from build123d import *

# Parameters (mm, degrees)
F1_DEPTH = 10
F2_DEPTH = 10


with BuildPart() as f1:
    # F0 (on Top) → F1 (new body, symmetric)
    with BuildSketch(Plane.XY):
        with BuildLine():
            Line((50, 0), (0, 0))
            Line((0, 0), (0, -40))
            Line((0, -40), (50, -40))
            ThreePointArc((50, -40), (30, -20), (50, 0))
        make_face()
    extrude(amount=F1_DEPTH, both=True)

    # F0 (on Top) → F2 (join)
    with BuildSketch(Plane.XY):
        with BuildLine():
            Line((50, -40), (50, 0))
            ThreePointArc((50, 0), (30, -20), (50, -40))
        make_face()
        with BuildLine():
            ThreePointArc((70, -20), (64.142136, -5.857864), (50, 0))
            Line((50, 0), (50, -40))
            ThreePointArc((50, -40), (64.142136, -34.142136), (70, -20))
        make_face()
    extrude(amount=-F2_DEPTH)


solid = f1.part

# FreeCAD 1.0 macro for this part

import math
import FreeCAD as App
import Part
import Sketcher

V = App.Vector
Q = App.Units.Quantity

doc = App.newDocument("Part")
body = doc.addObject("PartDesign::Body", "Body")

sketch1 = body.newObject("Sketcher::SketchObject", "Sketch")
sketch1.AttachmentSupport = (doc.getObject("XY_Plane"), [""])
sketch1.MapMode = "FlatFace"
sketch1.addGeometry(Part.LineSegment(V(50, 0, 0), V(0, 0, 0)), False)
sketch1.addGeometry(Part.LineSegment(V(0, 0, 0), V(0, -40, 0)), False)
sketch1.addGeometry(Part.LineSegment(V(0, -40, 0), V(50, -40, 0)), False)
sketch1.addGeometry(Part.ArcOfCircle(Part.Circle(V(50, -20, 0), V(0, 0, 1), 20), math.radians(90), math.radians(270)), False)
sketch1.addConstraint(Sketcher.Constraint("Coincident", 0, 2, 1, 1))
sketch1.addConstraint(Sketcher.Constraint("Coincident", 1, 2, 2, 1))
sketch1.addConstraint(Sketcher.Constraint("Tangent", 2, 2, 3, 2))
sketch1.addConstraint(Sketcher.Constraint("Tangent", 3, 1, 0, 1))
sketch1.addConstraint(Sketcher.Constraint("Horizontal", 0))
sketch1.addConstraint(Sketcher.Constraint("Vertical", 1))
sketch1.addConstraint(Sketcher.Constraint("Horizontal", 2))
sketch1.addConstraint(Sketcher.Constraint("Coincident", 0, 2, -1, 1))
sketch1.addConstraint(Sketcher.Constraint("Radius", 3, Q("20 mm")))
sketch1.addConstraint(Sketcher.Constraint("DistanceX", 0, 2, 0, 1, Q("50 mm")))
pad1 = body.newObject("PartDesign::Pad", "Pad")
pad1.Profile = sketch1
pad1.Length = 20
pad1.Midplane = True

sketch2 = body.newObject("Sketcher::SketchObject", "Sketch001")
sketch2.AttachmentSupport = (doc.getObject("XY_Plane"), [""])
sketch2.MapMode = "FlatFace"
sketch2.addGeometry(Part.ArcOfCircle(Part.Circle(V(50, -20, 0), V(0, 0, 1), 20), math.radians(90), math.radians(270)), False)
sketch2.addGeometry(Part.ArcOfCircle(Part.Circle(V(50, -20, 0), V(0, 0, 1), 20), math.radians(-90), math.radians(0)), False)
sketch2.addGeometry(Part.ArcOfCircle(Part.Circle(V(50, -20, 0), V(0, 0, 1), 20), math.radians(0), math.radians(90)), False)
sketch2.addConstraint(Sketcher.Constraint("Tangent", 0, 2, 1, 1))
sketch2.addConstraint(Sketcher.Constraint("Tangent", 1, 2, 2, 1))
sketch2.addConstraint(Sketcher.Constraint("Tangent", 2, 2, 0, 1))
sketch2.addConstraint(Sketcher.Constraint("PointOnObject", 2, 2, -1))
sketch2.addConstraint(Sketcher.Constraint("Horizontal", 2, 3, 1, 2))
sketch2.addConstraint(Sketcher.Constraint("Vertical", 2, 3, 0, 2))
sketch2.addConstraint(Sketcher.Constraint("Vertical", 0, 2, 2, 2))
sketch2.addConstraint(Sketcher.Constraint("Radius", 0, Q("20 mm")))
sketch2.addConstraint(Sketcher.Constraint("DistanceX", -1, 1, 0, 3, Q("50 mm")))
pad2 = body.newObject("PartDesign::Pad", "Pad001")
pad2.Profile = sketch2
pad2.Length = 10
pad2.Reversed = True

doc.recompute()
